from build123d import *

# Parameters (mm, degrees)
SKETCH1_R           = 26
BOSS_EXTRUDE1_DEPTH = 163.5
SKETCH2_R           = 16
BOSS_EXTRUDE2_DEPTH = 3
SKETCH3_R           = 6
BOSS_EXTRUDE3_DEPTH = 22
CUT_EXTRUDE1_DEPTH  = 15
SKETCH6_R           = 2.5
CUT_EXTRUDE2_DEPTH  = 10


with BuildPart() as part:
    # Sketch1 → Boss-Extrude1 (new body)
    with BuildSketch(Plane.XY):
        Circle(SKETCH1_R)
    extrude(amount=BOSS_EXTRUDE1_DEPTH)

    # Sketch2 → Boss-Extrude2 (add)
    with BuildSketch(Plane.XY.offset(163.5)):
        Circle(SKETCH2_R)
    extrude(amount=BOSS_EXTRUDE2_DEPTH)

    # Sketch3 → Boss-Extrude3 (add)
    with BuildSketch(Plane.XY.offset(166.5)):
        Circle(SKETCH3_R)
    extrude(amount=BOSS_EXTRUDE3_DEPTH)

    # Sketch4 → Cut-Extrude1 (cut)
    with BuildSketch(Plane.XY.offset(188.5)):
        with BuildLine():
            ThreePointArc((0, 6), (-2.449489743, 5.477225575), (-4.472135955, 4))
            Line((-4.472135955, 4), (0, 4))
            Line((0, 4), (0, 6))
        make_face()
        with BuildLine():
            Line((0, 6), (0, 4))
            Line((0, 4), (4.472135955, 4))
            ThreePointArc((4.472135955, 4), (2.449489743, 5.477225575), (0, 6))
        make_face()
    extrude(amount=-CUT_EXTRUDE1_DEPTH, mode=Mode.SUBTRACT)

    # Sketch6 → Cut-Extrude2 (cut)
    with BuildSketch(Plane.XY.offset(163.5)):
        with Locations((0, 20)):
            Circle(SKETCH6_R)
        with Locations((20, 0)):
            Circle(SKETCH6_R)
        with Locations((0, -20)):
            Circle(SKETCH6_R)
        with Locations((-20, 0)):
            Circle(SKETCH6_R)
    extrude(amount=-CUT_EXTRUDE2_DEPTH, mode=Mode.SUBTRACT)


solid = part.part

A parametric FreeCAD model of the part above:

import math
import FreeCAD as App
import Part
import Sketcher

doc = App.newDocument("Part")
body = doc.addObject("PartDesign::Body", "Body")

sketch1 = body.newObject("Sketcher::SketchObject", "Sketch")
sketch1.AttachmentSupport = (doc.getObject("XY_Plane"), [""])
sketch1.MapMode = "FlatFace"
sketch1.addGeometry(Part.Circle(App.Vector(0, 0, 0), App.Vector(0, 0, 1), 26), False)
sketch1.addConstraint([
    Sketcher.Constraint("Coincident", 0, 3, -1, 1),
    Sketcher.Constraint("Diameter", 0, 52.0),
])
pad1 = body.newObject("PartDesign::Pad", "Pad")
pad1.Profile = sketch1
pad1.Length = 163.5

sketch2 = body.newObject("Sketcher::SketchObject", "Sketch001")
sketch2.AttachmentSupport = (doc.getObject("XY_Plane"), [""])
sketch2.MapMode = "FlatFace"
sketch2.AttachmentOffset = App.Placement(App.Vector(0, 0, 163.5), App.Rotation())
sketch2.addGeometry(Part.Circle(App.Vector(0, 0, 0), App.Vector(0, 0, 1), 16), False)
sketch2.addConstraint([
    Sketcher.Constraint("Coincident", 0, 3, -1, 1),
    Sketcher.Constraint("Diameter", 0, 32.0),
])
pad2 = body.newObject("PartDesign::Pad", "Pad001")
pad2.Profile = sketch2
pad2.Length = 3

sketch3 = body.newObject("Sketcher::SketchObject", "Sketch002")
sketch3.AttachmentSupport = (doc.getObject("XY_Plane"), [""])
sketch3.MapMode = "FlatFace"
sketch3.AttachmentOffset = App.Placement(App.Vector(0, 0, 166.5), App.Rotation())
sketch3.addGeometry(Part.Circle(App.Vector(0, 0, 0), App.Vector(0, 0, 1), 6), False)
sketch3.addConstraint([
    Sketcher.Constraint("Coincident", 0, 3, -1, 1),
    Sketcher.Constraint("Diameter", 0, 12.0),
])
pad3 = body.newObject("PartDesign::Pad", "Pad002")
pad3.Profile = sketch3
pad3.Length = 22

sketch4 = body.newObject("Sketcher::SketchObject", "Sketch003")
sketch4.AttachmentSupport = (doc.getObject("XY_Plane"), [""])
sketch4.MapMode = "FlatFace"
sketch4.AttachmentOffset = App.Placement(App.Vector(0, 0, 188.5), App.Rotation())
sketch4.addGeometry([
    Part.ArcOfCircle(Part.Circle(App.Vector(0, 0, 0), App.Vector(0, 0, 1), 6), math.radians(90), math.radians(138)),
    Part.LineSegment(App.Vector(-4.5, 4, 0), App.Vector(4.5, 4, 0)),
    Part.ArcOfCircle(Part.Circle(App.Vector(0, 0, 0), App.Vector(0, 0, 1), 6), math.radians(42), math.radians(90)),
], False)
sketch4.addConstraint([
    Sketcher.Constraint("Coincident", 0, 2, 1, 1),
    Sketcher.Constraint("Coincident", 1, 2, 2, 1),
    Sketcher.Constraint("Tangent", 2, 2, 0, 1),
    Sketcher.Constraint("Horizontal", 1),
    Sketcher.Constraint("Coincident", 0, 3, -1, 1),
    Sketcher.Constraint("Equal", 0, 2),
    Sketcher.Constraint("PointOnObject", 2, 2, -2),
    Sketcher.Constraint("Radius", 0, 6.0),
    Sketcher.Constraint("DistanceY", -1, 1, 0, 2, 4.0),
])
pocket1 = body.newObject("PartDesign::Pocket", "Pocket")
pocket1.Profile = sketch4
pocket1.Length = 15

sketch5 = body.newObject("Sketcher::SketchObject", "Sketch004")
sketch5.AttachmentSupport = (doc.getObject("XY_Plane"), [""])
sketch5.MapMode = "FlatFace"
sketch5.AttachmentOffset = App.Placement(App.Vector(0, 0, 163.5), App.Rotation())
sketch5.addGeometry([
    Part.Circle(App.Vector(0, 20, 0), App.Vector(0, 0, 1), 2.5),
    Part.Circle(App.Vector(20, 0, 0), App.Vector(0, 0, 1), 2.5),
    Part.Circle(App.Vector(0, -20, 0), App.Vector(0, 0, 1), 2.5),
    Part.Circle(App.Vector(-20, 0, 0), App.Vector(0, 0, 1), 2.5),
], False)
sketch5.addConstraint([
    Sketcher.Constraint("Equal", 0, 1),
    Sketcher.Constraint("Equal", 1, 2),
    Sketcher.Constraint("Equal", 2, 3),
    Sketcher.Constraint("Symmetric", 0, 3, 2, 3, -1, 1),
    Sketcher.Constraint("Symmetric", 1, 3, 3, 3, -1, 1),
    Sketcher.Constraint("PointOnObject", 0, 3, -2),
    Sketcher.Constraint("PointOnObject", 1, 3, -1),
    Sketcher.Constraint("Diameter", 0, 5.0),
    Sketcher.Constraint("DistanceY", -1, 1, 0, 3, 20.0),
    Sketcher.Constraint("DistanceX", -1, 1, 1, 3, 20.0),
])
pocket2 = body.newObject("PartDesign::Pocket", "Pocket001")
pocket2.Profile = sketch5
pocket2.Length = 10

doc.recompute()
